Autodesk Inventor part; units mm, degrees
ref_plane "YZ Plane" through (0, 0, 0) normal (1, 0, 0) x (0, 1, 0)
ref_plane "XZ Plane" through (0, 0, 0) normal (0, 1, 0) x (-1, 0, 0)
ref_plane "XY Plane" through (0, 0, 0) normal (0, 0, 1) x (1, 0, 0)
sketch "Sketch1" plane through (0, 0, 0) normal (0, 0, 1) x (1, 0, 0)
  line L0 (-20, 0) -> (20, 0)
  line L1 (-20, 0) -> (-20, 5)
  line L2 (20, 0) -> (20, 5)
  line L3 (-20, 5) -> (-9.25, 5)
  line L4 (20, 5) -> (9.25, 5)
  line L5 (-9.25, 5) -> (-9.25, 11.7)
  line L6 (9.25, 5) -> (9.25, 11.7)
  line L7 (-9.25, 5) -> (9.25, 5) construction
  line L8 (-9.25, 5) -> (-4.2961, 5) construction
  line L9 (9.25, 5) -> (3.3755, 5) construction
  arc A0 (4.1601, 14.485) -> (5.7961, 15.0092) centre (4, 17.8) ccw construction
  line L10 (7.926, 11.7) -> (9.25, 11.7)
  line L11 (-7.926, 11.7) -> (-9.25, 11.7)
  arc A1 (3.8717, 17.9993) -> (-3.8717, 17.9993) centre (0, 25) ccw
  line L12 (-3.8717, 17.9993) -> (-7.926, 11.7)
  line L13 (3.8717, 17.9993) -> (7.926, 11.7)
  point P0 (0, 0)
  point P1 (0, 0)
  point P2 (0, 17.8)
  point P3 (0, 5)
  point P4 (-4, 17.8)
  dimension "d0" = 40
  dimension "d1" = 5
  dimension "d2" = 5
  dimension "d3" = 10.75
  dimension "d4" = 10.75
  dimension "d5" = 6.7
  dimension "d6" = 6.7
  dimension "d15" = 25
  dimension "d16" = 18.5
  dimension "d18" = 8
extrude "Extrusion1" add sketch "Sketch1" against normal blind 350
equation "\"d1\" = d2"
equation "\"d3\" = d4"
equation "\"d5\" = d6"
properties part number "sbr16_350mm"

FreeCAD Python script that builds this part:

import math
import FreeCAD as App
import Part
import Sketcher
from FreeCAD import Vector

doc = App.newDocument("Part")
body = doc.addObject("PartDesign::Body", "Body")

# Sketch on XY plane
sketch1 = body.newObject("Sketcher::SketchObject", "Sketch")
sketch1.AttachmentSupport = (doc.getObject("XY_Plane"), [""])
sketch1.MapMode = "FlatFace"
sketch1.addGeometry([
    Part.LineSegment(Vector(-20, 5, 0), Vector(-20, 0, 0)),  # 0
    Part.LineSegment(Vector(-20, 0, 0), Vector(20, 0, 0)),  # 1
    Part.LineSegment(Vector(20, 0, 0), Vector(20, 5, 0)),  # 2
    Part.LineSegment(Vector(20, 5, 0), Vector(9.2, 5, 0)),  # 3
    Part.LineSegment(Vector(9.2, 5, 0), Vector(9.2, 11.7, 0)),  # 4
    Part.LineSegment(Vector(9.2, 11.7, 0), Vector(7.9, 11.7, 0)),  # 5
    Part.LineSegment(Vector(7.9, 11.7, 0), Vector(3.9, 18, 0)),  # 6
    Part.ArcOfCircle(Part.Circle(Vector(0, 25, 0), Vector(0, 0, 1), 8), math.radians(-61), math.radians(241)),  # 7
    Part.LineSegment(Vector(-3.9, 18, 0), Vector(-7.9, 11.7, 0)),  # 8
    Part.LineSegment(Vector(-7.9, 11.7, 0), Vector(-9.2, 11.7, 0)),  # 9
    Part.LineSegment(Vector(-9.2, 11.7, 0), Vector(-9.2, 5, 0)),  # 10
    Part.LineSegment(Vector(-9.2, 5, 0), Vector(-20, 5, 0)),  # 11
], False)
sketch1.addConstraint([
    Sketcher.Constraint("Coincident", 0, 2, 1, 1),
    Sketcher.Constraint("Coincident", 1, 2, 2, 1),
    Sketcher.Constraint("Coincident", 2, 2, 3, 1),
    Sketcher.Constraint("Coincident", 3, 2, 4, 1),
    Sketcher.Constraint("Coincident", 4, 2, 5, 1),
    Sketcher.Constraint("Coincident", 5, 2, 6, 1),
    Sketcher.Constraint("Coincident", 6, 2, 7, 1),
    Sketcher.Constraint("Coincident", 7, 2, 8, 1),
    Sketcher.Constraint("Coincident", 8, 2, 9, 1),
    Sketcher.Constraint("Coincident", 9, 2, 10, 1),
    Sketcher.Constraint("Coincident", 10, 2, 11, 1),
    Sketcher.Constraint("Coincident", 11, 2, 0, 1),
    Sketcher.Constraint("Vertical", 0),
    Sketcher.Constraint("Horizontal", 1),
    Sketcher.Constraint("Vertical", 2),
    Sketcher.Constraint("Horizontal", 3),
    Sketcher.Constraint("Vertical", 4),
    Sketcher.Constraint("Horizontal", 5),
    Sketcher.Constraint("Horizontal", 9),
    Sketcher.Constraint("Vertical", 10),
    Sketcher.Constraint("Horizontal", 11),
    Sketcher.Constraint("Symmetric", 0, 2, 1, 2, -1, 1),
    Sketcher.Constraint("Symmetric", 6, 2, 7, 2, -2),
    Sketcher.Constraint("Symmetric", 5, 2, 8, 2, -2),
    Sketcher.Constraint("Symmetric", 3, 2, 10, 2, -2),
    Sketcher.Constraint("Radius", 7, 8.0),
    Sketcher.Constraint("DistanceX", 1, 1, 1, 2, 40.0),
    Sketcher.Constraint("DistanceY", 0, 2, 0, 1, 5.0),
    Sketcher.Constraint("DistanceY", 4, 1, 4, 2, 6.7),
    Sketcher.Constraint("DistanceY", -1, 1, 7, 3, 25.0),
    Sketcher.Constraint("DistanceX", 3, 2, 3, 1, 10.75),
    Sketcher.Constraint("DistanceX", 5, 2, 5, 1, 1.324),
    Sketcher.Constraint("Distance", 6, 7.4912),
])
pad1 = body.newObject("PartDesign::Pad", "Pad")
pad1.Profile = sketch1
pad1.Length = 350
pad1.Reversed = True

doc.recompute()
